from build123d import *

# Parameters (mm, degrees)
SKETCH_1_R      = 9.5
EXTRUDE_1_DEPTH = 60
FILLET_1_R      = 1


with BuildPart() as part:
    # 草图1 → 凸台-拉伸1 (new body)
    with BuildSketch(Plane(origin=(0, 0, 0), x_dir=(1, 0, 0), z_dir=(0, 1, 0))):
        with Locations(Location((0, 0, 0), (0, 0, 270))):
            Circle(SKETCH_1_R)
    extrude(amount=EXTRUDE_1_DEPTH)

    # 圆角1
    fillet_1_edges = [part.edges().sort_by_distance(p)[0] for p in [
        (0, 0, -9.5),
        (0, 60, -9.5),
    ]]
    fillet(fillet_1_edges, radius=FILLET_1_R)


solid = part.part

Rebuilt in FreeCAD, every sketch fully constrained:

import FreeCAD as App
import Part
import Sketcher
from FreeCAD import Vector


def edges_at(feature, points):
    """Names of the edges that pass closest to the given points."""
    edges = feature.Shape.Edges
    near = lambda p: min(range(len(edges)), key=lambda i: edges[i].distToShape(Part.Vertex(*p))[0])
    return sorted({f"Edge{near(p) + 1}" for p in points})

doc = App.newDocument("Part")
params = doc.addObject("Spreadsheet::Sheet", "Params")
for row, (alias, value) in enumerate([
    ("sketch1_diameter", "19 mm"),
    ("pad1_length", "60 mm"),
    ("fillet_radius", "1 mm"),
], start=1):
    params.set(f"A{row}", alias)
    params.set(f"B{row}", "=" + value)
    params.setAlias(f"B{row}", alias)

body = doc.addObject("PartDesign::Body", "Body")

# Sketch on XZ plane
sketch1 = doc.addObject("Sketcher::SketchObject", "Sketch")
body.addObject(sketch1)
sketch1.AttachmentSupport = (doc.XZ_Plane, [""])
sketch1.MapMode = "FlatFace"
sketch1.addGeometry(Part.Circle(Vector(0, 0, 0), Vector(0, 0, 1), 10), False)
sketch1.addConstraint(Sketcher.Constraint("Coincident", 0, 3, -1, 1))
sketch1.addConstraint(Sketcher.Constraint("Diameter", 0, 19.0))
sketch1.setExpression("Constraints[1]", "Params.sketch1_diameter")
pad1 = doc.addObject("PartDesign::Pad", "Pad")
body.addObject(pad1)
pad1.Profile = sketch1
pad1.setExpression("Length", "Params.pad1_length")
pad1.Reversed = True
doc.recompute()

fillet = doc.addObject("PartDesign::Fillet", "Fillet")
body.addObject(fillet)
fillet.Base = (pad1, edges_at(pad1, [(0, 0, -9.5), (0, 60, -9.5)]))
fillet.setExpression("Radius", "Params.fillet_radius")

doc.recompute()
